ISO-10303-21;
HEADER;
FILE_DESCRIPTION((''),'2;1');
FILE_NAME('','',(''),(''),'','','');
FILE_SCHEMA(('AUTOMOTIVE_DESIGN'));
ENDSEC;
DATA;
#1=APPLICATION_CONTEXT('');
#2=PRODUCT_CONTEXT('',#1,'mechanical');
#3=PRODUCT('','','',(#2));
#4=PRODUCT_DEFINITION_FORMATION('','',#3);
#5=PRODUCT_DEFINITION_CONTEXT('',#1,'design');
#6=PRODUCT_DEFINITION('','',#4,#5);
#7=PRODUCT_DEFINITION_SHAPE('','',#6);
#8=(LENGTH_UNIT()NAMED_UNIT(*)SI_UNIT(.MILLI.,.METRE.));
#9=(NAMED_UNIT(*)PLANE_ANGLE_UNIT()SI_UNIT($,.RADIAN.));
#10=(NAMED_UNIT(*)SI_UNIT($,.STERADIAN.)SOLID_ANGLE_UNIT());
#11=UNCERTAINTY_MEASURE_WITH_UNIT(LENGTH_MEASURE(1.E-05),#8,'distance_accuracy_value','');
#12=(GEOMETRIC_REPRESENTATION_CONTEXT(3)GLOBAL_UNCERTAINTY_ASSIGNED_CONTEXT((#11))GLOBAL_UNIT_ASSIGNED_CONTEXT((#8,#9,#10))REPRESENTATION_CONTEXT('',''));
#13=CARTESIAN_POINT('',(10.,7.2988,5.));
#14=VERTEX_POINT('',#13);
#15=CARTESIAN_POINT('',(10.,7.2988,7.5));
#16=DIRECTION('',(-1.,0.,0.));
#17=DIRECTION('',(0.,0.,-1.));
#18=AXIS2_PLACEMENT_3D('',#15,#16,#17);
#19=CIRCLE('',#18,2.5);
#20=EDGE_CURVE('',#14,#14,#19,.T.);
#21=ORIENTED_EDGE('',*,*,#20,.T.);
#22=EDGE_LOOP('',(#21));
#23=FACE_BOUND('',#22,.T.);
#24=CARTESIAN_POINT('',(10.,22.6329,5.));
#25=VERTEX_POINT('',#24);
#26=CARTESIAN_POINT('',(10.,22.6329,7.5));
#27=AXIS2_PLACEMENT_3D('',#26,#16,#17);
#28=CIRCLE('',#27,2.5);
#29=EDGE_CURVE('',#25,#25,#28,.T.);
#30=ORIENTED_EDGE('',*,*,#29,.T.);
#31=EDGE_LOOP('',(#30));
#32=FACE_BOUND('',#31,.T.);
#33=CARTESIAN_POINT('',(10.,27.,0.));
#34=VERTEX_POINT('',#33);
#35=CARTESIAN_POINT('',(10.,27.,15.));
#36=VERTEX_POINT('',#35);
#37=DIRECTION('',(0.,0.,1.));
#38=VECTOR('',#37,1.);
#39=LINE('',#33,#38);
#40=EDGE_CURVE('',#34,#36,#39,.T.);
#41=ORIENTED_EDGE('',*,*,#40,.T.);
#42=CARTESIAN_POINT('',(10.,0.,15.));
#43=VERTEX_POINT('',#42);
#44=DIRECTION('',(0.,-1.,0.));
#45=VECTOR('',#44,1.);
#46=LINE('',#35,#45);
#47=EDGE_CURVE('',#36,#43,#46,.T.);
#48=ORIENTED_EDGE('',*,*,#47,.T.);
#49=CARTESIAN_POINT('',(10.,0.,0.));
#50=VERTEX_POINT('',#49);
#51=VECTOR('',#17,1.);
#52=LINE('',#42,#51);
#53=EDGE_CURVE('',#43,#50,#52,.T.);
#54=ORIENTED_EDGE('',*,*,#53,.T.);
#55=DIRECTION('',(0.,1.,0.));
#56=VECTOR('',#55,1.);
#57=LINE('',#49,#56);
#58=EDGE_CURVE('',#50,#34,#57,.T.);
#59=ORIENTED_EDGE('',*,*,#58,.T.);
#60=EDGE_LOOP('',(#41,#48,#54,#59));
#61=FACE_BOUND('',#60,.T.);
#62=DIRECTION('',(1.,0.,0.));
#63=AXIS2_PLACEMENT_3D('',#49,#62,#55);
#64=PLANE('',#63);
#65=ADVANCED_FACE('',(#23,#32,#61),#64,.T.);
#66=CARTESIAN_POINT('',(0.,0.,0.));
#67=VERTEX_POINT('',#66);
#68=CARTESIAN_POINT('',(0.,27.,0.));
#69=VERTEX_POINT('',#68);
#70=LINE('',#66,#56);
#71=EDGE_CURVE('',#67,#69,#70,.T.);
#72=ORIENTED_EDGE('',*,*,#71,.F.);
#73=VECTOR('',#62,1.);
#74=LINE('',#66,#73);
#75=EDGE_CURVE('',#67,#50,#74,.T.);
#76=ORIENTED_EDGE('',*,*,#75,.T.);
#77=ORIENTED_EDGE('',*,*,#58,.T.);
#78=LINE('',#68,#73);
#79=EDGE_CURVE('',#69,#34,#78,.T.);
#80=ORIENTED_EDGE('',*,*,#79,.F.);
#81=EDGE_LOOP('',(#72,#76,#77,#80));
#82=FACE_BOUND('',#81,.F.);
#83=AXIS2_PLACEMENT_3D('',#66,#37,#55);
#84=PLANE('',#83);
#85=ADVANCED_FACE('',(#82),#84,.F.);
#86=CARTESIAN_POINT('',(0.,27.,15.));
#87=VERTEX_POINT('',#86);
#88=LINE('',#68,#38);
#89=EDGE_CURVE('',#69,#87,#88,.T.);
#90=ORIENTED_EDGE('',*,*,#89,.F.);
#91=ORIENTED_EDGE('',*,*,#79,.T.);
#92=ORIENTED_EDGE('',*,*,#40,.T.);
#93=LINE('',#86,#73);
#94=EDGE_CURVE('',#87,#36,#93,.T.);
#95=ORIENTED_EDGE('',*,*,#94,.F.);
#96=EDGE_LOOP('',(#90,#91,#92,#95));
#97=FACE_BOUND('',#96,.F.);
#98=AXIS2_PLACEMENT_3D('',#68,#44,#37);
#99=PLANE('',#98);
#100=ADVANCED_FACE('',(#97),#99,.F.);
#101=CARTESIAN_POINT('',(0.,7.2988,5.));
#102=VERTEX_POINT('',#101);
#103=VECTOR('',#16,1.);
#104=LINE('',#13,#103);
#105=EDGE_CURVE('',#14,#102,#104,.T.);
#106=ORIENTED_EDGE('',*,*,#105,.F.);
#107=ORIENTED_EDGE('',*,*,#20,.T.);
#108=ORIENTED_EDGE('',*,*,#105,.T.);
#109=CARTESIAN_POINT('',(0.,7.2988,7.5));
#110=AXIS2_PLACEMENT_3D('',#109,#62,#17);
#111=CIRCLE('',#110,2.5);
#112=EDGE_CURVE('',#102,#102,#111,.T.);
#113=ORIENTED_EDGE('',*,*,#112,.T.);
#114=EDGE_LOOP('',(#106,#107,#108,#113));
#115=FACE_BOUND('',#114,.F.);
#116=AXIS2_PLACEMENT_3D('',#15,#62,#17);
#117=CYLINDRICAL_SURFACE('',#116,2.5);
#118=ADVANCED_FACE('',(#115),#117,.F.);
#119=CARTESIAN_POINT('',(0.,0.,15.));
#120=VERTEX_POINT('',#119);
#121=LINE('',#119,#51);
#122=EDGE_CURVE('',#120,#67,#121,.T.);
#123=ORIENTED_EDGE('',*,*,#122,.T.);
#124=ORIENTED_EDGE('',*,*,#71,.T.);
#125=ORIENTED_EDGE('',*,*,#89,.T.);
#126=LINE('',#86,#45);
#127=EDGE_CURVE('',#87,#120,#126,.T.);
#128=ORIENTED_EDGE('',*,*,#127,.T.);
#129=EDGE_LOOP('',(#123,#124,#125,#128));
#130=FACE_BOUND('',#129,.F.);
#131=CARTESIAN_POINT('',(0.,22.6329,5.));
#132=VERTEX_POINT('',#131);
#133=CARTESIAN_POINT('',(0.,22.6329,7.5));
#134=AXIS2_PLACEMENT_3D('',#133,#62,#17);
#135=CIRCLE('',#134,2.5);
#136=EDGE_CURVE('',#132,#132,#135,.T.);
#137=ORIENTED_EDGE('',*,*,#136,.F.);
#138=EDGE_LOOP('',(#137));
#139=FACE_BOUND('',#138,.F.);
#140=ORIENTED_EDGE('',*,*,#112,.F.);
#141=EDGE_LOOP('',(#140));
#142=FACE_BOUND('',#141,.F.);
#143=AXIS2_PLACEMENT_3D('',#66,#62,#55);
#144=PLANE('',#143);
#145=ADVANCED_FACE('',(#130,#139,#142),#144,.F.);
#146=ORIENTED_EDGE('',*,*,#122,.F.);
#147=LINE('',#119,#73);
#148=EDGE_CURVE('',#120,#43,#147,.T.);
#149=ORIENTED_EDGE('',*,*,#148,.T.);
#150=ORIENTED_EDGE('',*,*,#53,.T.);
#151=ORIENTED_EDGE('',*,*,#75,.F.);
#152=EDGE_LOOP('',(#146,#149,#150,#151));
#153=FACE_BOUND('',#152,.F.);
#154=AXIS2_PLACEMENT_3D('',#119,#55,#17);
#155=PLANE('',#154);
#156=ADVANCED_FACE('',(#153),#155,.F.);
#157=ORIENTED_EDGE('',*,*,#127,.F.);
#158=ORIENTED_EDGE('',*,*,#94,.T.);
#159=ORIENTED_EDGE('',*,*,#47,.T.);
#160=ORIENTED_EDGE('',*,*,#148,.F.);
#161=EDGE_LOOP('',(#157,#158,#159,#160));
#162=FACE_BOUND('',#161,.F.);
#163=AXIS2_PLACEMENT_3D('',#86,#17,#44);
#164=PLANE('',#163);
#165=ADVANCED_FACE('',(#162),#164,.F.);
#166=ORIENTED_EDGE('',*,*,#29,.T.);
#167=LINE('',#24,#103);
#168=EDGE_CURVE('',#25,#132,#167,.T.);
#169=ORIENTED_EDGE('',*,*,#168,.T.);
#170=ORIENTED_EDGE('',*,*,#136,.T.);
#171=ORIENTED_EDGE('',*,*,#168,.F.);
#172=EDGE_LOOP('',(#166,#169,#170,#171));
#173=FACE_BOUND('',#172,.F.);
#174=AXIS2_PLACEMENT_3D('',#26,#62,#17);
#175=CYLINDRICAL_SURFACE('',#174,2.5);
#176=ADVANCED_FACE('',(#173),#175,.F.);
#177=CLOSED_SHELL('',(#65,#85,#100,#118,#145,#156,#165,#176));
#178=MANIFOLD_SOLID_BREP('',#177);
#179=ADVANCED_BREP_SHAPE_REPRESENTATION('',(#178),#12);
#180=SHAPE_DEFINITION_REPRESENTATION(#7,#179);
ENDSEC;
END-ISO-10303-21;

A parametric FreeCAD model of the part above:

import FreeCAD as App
import Part
import Sketcher
from FreeCAD import Vector
Q = App.Units.Quantity


def add_polygon(sketch, points):
    """Adds a closed chain of lines whose ends are joined by coincident constraints."""
    first, n = sketch.GeometryCount, len(points)
    for a, b in zip(points, points[1:] + points[:1]):
        sketch.addGeometry(Part.LineSegment(App.Vector(*a, 0), App.Vector(*b, 0)), False)
    for i in range(n):
        sketch.addConstraint(Sketcher.Constraint("Coincident", first + i, 2, first + (i + 1) % n, 1))

doc = App.newDocument("Part")
body = doc.addObject("PartDesign::Body", "Body")

sketch1 = body.newObject("Sketcher::SketchObject", "Sketch")
sketch1.AttachmentSupport = (doc.getObject("YZ_Plane"), [""])
sketch1.MapMode = "FlatFace"
add_polygon(sketch1, [(0, 15), (0, 0), (27, 0), (27, 15)])
sketch1.addConstraint([
    Sketcher.Constraint("Vertical", 0),
    Sketcher.Constraint("Horizontal", 1),
    Sketcher.Constraint("Vertical", 2),
    Sketcher.Constraint("Horizontal", 3),
    Sketcher.Constraint("Coincident", 0, 2, -1, 1),
    Sketcher.Constraint("DistanceX", 1, 1, 1, 2, Q("27 mm")),
    Sketcher.Constraint("DistanceY", 0, 2, 0, 1, Q("15 mm")),
])
pad1 = body.newObject("PartDesign::Pad", "Pad")
pad1.Profile = sketch1
pad1.Length = 10

sketch2 = body.newObject("Sketcher::SketchObject", "Sketch001")
sketch2.AttachmentSupport = (doc.getObject("YZ_Plane"), [""])
sketch2.MapMode = "FlatFace"
sketch2.AttachmentOffset = App.Placement(Vector(0, 0, 10), App.Rotation())
sketch2.addGeometry([
    Part.Circle(Vector(22.6, 7.5, 0), Vector(0, 0, 1), 2.5),
    Part.Circle(Vector(7.3, 7.5, 0), Vector(0, 0, 1), 2.5),
], False)
sketch2.addConstraint([
    Sketcher.Constraint("Equal", 0, 1),
    Sketcher.Constraint("Horizontal", 0, 3, 1, 3),
    Sketcher.Constraint("Diameter", 0, Q("5 mm")),
    Sketcher.Constraint("DistanceY", -1, 1, 0, 3, Q("7.5 mm")),
    Sketcher.Constraint("DistanceX", -1, 1, 0, 3, Q("22.633 mm")),
    Sketcher.Constraint("DistanceX", 1, 3, 0, 3, Q("15.334 mm")),
])
pocket1 = body.newObject("PartDesign::Pocket", "Pocket")
pocket1.Profile = sketch2
pocket1.Length = 10

doc.recompute()
